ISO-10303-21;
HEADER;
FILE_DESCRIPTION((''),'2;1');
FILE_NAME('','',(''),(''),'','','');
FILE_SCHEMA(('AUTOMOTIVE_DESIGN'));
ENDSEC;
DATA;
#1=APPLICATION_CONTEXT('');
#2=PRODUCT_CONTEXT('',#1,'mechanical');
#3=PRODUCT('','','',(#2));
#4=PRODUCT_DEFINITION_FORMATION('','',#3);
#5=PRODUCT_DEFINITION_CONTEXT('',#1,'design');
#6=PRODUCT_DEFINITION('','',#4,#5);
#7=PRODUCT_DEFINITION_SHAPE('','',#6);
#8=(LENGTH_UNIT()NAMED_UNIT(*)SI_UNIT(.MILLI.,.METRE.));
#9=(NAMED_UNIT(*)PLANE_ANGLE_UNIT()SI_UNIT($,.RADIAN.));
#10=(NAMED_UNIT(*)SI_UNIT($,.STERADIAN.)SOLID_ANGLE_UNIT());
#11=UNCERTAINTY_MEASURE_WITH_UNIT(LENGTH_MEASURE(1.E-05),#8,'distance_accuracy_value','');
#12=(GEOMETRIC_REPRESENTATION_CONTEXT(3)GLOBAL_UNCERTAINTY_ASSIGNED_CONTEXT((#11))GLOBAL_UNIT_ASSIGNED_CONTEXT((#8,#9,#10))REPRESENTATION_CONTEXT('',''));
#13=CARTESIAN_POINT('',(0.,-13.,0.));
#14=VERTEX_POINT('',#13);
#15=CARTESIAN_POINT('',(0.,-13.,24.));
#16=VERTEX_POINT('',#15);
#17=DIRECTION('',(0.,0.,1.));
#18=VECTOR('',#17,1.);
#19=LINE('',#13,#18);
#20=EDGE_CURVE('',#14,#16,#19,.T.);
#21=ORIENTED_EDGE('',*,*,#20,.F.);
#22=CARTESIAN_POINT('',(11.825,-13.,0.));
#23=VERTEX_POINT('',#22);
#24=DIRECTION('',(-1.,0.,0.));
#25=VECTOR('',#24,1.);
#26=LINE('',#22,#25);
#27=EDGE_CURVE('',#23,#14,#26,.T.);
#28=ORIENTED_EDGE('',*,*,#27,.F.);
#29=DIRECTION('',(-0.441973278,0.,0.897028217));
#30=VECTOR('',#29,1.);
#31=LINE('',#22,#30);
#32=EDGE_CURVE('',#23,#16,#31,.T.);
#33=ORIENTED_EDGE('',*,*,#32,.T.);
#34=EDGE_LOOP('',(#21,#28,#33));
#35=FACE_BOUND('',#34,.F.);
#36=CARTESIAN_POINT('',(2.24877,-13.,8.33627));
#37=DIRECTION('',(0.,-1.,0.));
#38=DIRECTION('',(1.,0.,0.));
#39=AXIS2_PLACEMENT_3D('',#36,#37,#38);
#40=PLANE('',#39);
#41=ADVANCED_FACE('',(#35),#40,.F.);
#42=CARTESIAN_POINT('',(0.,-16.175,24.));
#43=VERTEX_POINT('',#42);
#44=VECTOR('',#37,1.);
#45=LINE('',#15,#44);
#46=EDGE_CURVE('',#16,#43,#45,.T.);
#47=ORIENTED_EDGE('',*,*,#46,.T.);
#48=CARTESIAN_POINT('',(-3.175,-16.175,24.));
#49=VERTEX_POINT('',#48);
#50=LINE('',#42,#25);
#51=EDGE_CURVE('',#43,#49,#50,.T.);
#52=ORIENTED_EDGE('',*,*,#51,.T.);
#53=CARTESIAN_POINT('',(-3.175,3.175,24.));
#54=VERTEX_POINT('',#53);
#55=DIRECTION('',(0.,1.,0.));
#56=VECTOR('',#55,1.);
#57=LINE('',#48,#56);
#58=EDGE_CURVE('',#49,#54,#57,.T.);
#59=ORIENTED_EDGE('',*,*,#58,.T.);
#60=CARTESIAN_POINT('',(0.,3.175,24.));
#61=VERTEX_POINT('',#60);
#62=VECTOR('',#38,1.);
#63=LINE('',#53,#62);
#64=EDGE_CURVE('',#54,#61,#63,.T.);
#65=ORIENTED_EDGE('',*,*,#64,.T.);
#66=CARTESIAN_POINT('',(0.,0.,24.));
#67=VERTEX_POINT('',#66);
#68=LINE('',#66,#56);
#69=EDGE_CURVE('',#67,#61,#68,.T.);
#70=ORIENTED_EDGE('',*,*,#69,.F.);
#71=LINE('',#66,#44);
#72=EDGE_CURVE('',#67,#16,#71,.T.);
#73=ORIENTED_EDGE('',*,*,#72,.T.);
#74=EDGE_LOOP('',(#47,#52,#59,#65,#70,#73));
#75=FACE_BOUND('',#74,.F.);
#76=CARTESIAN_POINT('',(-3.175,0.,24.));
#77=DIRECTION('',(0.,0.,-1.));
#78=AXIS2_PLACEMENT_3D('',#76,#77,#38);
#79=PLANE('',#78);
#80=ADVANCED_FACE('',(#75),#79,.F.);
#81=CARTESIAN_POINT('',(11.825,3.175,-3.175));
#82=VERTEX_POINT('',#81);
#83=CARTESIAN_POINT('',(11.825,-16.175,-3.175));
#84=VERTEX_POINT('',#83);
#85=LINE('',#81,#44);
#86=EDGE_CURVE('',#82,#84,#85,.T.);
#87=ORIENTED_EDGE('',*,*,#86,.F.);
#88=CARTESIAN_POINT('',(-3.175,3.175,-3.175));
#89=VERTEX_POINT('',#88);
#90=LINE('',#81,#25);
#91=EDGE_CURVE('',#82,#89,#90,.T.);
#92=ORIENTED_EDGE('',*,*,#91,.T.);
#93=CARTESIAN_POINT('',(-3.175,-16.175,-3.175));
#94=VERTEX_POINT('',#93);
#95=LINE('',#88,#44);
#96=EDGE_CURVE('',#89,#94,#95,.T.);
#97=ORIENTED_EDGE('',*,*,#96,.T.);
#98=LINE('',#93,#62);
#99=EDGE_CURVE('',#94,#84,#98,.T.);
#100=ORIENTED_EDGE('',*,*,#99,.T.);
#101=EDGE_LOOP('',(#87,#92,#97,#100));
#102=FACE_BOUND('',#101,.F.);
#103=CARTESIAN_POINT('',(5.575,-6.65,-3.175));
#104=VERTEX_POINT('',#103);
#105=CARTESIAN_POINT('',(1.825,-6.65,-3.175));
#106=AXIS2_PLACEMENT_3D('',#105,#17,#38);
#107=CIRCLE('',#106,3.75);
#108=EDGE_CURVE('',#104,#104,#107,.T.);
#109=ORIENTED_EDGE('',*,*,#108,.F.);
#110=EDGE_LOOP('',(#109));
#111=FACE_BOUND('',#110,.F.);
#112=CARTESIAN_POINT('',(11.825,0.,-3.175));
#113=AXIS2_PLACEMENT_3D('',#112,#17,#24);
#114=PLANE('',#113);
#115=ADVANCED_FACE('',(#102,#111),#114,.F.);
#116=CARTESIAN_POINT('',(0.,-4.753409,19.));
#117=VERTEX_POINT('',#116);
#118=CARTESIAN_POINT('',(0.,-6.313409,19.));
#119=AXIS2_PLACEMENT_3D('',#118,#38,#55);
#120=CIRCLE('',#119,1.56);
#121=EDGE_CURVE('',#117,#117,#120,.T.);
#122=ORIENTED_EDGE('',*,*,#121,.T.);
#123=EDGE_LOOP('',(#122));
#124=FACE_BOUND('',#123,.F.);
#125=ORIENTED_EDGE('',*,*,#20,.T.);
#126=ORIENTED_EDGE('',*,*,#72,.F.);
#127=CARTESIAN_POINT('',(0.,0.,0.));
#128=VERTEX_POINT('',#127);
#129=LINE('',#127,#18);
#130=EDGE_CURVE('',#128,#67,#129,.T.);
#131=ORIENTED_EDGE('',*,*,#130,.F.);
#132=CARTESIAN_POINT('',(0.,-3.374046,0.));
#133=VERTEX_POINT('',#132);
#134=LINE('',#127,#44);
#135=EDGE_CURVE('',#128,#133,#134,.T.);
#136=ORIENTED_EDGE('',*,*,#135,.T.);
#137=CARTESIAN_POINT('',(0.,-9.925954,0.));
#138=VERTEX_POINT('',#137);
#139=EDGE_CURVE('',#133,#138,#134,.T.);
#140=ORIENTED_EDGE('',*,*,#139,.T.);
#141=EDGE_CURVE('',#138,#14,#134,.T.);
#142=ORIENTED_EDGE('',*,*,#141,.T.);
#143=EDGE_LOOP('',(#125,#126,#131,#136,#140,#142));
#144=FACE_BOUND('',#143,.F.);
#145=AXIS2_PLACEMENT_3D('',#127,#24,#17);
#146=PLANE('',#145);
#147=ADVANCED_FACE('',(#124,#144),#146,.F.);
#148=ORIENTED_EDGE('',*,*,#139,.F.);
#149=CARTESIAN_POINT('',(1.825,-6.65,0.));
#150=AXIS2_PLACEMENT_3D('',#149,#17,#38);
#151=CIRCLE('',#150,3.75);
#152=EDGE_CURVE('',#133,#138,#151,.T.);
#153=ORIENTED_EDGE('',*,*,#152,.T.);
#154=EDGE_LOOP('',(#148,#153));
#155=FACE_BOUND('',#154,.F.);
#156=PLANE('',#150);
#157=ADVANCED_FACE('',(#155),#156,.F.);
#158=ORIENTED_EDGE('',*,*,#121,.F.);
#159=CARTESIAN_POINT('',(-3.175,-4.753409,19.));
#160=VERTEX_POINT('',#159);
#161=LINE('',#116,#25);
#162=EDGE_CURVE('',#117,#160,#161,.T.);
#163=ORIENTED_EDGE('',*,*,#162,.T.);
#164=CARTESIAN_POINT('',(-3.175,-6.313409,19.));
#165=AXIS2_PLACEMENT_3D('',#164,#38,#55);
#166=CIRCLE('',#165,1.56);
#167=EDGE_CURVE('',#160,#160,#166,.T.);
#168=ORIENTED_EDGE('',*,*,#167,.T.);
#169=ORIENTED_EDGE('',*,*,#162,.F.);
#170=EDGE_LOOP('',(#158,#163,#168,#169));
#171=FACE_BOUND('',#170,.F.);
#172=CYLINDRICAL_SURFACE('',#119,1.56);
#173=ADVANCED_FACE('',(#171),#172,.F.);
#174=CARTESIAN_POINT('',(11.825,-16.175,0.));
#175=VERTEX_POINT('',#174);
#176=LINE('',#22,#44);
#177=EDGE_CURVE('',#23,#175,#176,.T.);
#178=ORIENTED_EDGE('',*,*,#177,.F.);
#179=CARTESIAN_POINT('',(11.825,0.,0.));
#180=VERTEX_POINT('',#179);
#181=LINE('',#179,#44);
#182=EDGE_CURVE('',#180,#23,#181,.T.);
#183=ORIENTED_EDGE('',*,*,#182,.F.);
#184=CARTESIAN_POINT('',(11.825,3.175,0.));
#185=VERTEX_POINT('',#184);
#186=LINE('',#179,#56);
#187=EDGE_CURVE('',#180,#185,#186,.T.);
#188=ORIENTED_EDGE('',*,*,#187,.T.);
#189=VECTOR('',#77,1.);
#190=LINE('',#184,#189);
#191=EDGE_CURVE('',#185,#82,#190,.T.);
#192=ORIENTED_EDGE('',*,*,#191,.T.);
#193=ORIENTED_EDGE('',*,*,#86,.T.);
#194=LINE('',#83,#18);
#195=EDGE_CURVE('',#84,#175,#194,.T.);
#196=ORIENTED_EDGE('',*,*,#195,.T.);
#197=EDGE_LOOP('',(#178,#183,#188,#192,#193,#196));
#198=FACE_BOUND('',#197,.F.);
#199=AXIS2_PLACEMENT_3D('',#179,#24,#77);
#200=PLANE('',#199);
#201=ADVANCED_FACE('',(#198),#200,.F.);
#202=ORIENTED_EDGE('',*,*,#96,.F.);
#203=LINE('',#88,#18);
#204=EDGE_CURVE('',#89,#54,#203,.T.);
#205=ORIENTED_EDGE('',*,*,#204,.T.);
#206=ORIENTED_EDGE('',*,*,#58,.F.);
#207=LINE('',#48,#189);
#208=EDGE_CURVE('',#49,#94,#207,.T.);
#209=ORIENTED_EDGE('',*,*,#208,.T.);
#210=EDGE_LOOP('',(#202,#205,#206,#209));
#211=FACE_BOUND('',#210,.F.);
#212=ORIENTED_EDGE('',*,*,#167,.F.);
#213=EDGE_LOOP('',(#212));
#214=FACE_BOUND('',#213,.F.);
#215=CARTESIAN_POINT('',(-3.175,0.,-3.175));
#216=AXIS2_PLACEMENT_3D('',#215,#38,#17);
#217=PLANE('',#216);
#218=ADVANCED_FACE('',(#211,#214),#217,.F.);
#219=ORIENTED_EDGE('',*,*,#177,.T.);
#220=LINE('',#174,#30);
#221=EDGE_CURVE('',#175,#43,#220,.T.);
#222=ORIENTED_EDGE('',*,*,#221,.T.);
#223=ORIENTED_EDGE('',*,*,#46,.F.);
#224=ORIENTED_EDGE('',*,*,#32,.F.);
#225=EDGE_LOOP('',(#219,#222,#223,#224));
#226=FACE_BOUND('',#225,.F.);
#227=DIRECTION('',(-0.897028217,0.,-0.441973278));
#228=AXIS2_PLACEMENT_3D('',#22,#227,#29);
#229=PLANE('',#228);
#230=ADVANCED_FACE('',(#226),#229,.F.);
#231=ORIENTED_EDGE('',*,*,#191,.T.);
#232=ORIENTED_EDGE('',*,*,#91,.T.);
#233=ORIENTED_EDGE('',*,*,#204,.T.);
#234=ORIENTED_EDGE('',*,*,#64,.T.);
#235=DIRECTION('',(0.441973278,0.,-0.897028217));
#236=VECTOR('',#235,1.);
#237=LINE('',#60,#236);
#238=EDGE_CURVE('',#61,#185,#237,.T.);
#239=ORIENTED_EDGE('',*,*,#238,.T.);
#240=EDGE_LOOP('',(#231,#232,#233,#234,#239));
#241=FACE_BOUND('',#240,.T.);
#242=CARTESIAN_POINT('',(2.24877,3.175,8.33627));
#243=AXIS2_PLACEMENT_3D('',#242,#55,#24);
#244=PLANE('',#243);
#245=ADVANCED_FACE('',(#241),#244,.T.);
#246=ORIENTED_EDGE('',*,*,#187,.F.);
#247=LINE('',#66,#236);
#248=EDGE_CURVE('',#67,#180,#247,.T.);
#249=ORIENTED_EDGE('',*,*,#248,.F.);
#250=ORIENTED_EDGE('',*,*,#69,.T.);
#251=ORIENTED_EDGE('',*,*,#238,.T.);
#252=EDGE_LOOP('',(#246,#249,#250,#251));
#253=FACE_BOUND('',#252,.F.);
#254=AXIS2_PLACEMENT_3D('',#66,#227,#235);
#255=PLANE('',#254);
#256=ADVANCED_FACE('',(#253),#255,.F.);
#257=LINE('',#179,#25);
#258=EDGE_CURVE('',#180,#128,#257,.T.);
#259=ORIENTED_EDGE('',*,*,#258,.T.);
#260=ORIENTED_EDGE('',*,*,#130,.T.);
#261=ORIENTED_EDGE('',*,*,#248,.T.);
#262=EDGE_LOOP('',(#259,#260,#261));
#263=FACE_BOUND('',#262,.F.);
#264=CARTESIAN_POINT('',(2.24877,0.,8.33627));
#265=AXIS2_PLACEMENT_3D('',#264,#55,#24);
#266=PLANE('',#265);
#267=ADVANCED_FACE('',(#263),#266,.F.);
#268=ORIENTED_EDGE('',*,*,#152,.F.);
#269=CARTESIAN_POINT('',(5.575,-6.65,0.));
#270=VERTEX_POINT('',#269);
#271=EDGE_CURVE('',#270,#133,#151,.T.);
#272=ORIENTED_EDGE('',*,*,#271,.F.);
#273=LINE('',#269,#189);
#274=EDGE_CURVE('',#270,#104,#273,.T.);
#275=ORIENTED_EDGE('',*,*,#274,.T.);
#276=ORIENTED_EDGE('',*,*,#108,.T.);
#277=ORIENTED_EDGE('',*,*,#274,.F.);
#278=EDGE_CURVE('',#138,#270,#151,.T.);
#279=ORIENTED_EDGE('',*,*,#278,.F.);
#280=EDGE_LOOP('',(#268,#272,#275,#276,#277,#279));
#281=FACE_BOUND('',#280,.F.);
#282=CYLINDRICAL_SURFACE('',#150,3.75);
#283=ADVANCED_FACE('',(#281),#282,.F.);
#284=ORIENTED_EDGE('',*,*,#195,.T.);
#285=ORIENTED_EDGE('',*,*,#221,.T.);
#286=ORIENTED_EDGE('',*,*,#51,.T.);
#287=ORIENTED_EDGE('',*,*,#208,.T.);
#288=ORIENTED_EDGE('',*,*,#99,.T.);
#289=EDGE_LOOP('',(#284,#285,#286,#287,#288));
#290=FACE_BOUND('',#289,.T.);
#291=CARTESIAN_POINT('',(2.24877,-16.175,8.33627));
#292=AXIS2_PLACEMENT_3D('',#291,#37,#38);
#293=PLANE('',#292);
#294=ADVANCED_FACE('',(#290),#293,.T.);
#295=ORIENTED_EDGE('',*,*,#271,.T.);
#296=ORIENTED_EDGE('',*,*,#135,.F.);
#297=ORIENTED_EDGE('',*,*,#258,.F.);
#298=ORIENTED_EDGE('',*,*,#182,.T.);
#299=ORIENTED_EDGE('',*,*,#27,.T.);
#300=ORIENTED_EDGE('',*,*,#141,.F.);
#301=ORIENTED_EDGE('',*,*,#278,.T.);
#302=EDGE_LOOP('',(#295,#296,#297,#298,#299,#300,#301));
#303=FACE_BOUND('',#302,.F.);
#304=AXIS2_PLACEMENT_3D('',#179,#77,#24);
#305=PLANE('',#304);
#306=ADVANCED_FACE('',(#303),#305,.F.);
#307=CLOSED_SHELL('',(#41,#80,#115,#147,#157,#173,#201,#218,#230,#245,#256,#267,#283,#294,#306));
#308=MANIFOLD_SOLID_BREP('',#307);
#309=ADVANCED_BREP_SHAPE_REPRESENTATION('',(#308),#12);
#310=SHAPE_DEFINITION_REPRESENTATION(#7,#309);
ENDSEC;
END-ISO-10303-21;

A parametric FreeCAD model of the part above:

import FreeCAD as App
import Part
import Sketcher

V = App.Vector

doc = App.newDocument("Part")
body = doc.addObject("PartDesign::Body", "Body")

# Sketch on XZ plane
sketch1 = doc.addObject("Sketcher::SketchObject", "Sketch")
body.addObject(sketch1)
sketch1.AttachmentSupport = (doc.XZ_Plane, [""])
sketch1.MapMode = "FlatFace"
sketch1.addGeometry(Part.LineSegment(V(0, 24, 0), V(-3.2, 24, 0)), False)
sketch1.addGeometry(Part.LineSegment(V(-3.2, 24, 0), V(-3.2, -3.2, 0)), False)
sketch1.addGeometry(Part.LineSegment(V(-3.2, -3.2, 0), V(11.8, -3.2, 0)), False)
sketch1.addGeometry(Part.LineSegment(V(11.8, -3.2, 0), V(11.8, 0, 0)), False)
sketch1.addGeometry(Part.LineSegment(V(11.8, 0, 0), V(0, 0, 0)), False)
sketch1.addGeometry(Part.LineSegment(V(0, 0, 0), V(0, 24, 0)), False)
sketch1.addConstraint(Sketcher.Constraint("Coincident", 0, 2, 1, 1))
sketch1.addConstraint(Sketcher.Constraint("Coincident", 1, 2, 2, 1))
sketch1.addConstraint(Sketcher.Constraint("Coincident", 2, 2, 3, 1))
sketch1.addConstraint(Sketcher.Constraint("Coincident", 3, 2, 4, 1))
sketch1.addConstraint(Sketcher.Constraint("Coincident", 4, 2, 5, 1))
sketch1.addConstraint(Sketcher.Constraint("Coincident", 5, 2, 0, 1))
sketch1.addConstraint(Sketcher.Constraint("Horizontal", 0))
sketch1.addConstraint(Sketcher.Constraint("Vertical", 1))
sketch1.addConstraint(Sketcher.Constraint("Horizontal", 2))
sketch1.addConstraint(Sketcher.Constraint("Vertical", 3))
sketch1.addConstraint(Sketcher.Constraint("Horizontal", 4))
sketch1.addConstraint(Sketcher.Constraint("Vertical", 5))
sketch1.addConstraint(Sketcher.Constraint("Coincident", 4, 2, -1, 1))
sketch1.addConstraint(Sketcher.Constraint("Equal", 0, 3))
sketch1.addConstraint(Sketcher.Constraint("DistanceX", 2, 1, 2, 2, 15.0))
sketch1.addConstraint(Sketcher.Constraint("DistanceY", 5, 1, 5, 2, 24.0))
sketch1.addConstraint(Sketcher.Constraint("DistanceX", 0, 2, 0, 1, 3.175))
pad1 = doc.addObject("PartDesign::Pad", "Pad")
body.addObject(pad1)
pad1.Profile = sketch1
pad1.Length = 13

# Sketch on XZ plane
sketch2 = doc.addObject("Sketcher::SketchObject", "Sketch001")
body.addObject(sketch2)
sketch2.AttachmentSupport = (doc.XZ_Plane, [""])
sketch2.MapMode = "FlatFace"
sketch2.AttachmentOffset = App.Placement(V(0, 0, 13), App.Rotation())
sketch2.addGeometry(Part.LineSegment(V(0, 24, 0), V(-3.2, 24, 0)), False)
sketch2.addGeometry(Part.LineSegment(V(-3.2, 24, 0), V(-3.2, -3.2, 0)), False)
sketch2.addGeometry(Part.LineSegment(V(-3.2, -3.2, 0), V(11.8, -3.2, 0)), False)
sketch2.addGeometry(Part.LineSegment(V(11.8, -3.2, 0), V(11.8, 0, 0)), False)
sketch2.addGeometry(Part.LineSegment(V(11.8, 0, 0), V(0, 24, 0)), False)
sketch2.addConstraint(Sketcher.Constraint("Coincident", 0, 2, 1, 1))
sketch2.addConstraint(Sketcher.Constraint("Coincident", 1, 2, 2, 1))
sketch2.addConstraint(Sketcher.Constraint("Coincident", 2, 2, 3, 1))
sketch2.addConstraint(Sketcher.Constraint("Coincident", 3, 2, 4, 1))
sketch2.addConstraint(Sketcher.Constraint("Coincident", 4, 2, 0, 1))
sketch2.addConstraint(Sketcher.Constraint("Horizontal", 0))
sketch2.addConstraint(Sketcher.Constraint("Vertical", 1))
sketch2.addConstraint(Sketcher.Constraint("Horizontal", 2))
sketch2.addConstraint(Sketcher.Constraint("Vertical", 3))
sketch2.addConstraint(Sketcher.Constraint("PointOnObject", 3, 2, -1))
sketch2.addConstraint(Sketcher.Constraint("PointOnObject", 4, 2, -2))
sketch2.addConstraint(Sketcher.Constraint("Equal", 0, 3))
sketch2.addConstraint(Sketcher.Constraint("DistanceX", 2, 1, 2, 2, 15.0))
sketch2.addConstraint(Sketcher.Constraint("DistanceY", -1, 1, 0, 2, 24.0))
sketch2.addConstraint(Sketcher.Constraint("DistanceX", 0, 2, 0, 1, 3.175))
pad2 = doc.addObject("PartDesign::Pad", "Pad001")
body.addObject(pad2)
pad2.Profile = sketch2
pad2.Length = 3.175

# Sketch on XZ plane
sketch3 = doc.addObject("Sketcher::SketchObject", "Sketch002")
body.addObject(sketch3)
sketch3.AttachmentSupport = (doc.XZ_Plane, [""])
sketch3.MapMode = "FlatFace"
sketch3.addGeometry(Part.LineSegment(V(-3.2, -3.2, 0), V(-3.2, 24, 0)), False)
sketch3.addGeometry(Part.LineSegment(V(-3.2, 24, 0), V(0, 24, 0)), False)
sketch3.addGeometry(Part.LineSegment(V(0, 24, 0), V(11.8, 0, 0)), False)
sketch3.addGeometry(Part.LineSegment(V(11.8, 0, 0), V(11.8, -3.2, 0)), False)
sketch3.addGeometry(Part.LineSegment(V(11.8, -3.2, 0), V(-3.2, -3.2, 0)), False)
sketch3.addConstraint(Sketcher.Constraint("Coincident", 0, 2, 1, 1))
sketch3.addConstraint(Sketcher.Constraint("Coincident", 1, 2, 2, 1))
sketch3.addConstraint(Sketcher.Constraint("Coincident", 2, 2, 3, 1))
sketch3.addConstraint(Sketcher.Constraint("Coincident", 3, 2, 4, 1))
sketch3.addConstraint(Sketcher.Constraint("Coincident", 4, 2, 0, 1))
sketch3.addConstraint(Sketcher.Constraint("Vertical", 0))
sketch3.addConstraint(Sketcher.Constraint("Horizontal", 1))
sketch3.addConstraint(Sketcher.Constraint("Vertical", 3))
sketch3.addConstraint(Sketcher.Constraint("Horizontal", 4))
sketch3.addConstraint(Sketcher.Constraint("PointOnObject", 1, 2, -2))
sketch3.addConstraint(Sketcher.Constraint("PointOnObject", 2, 2, -1))
sketch3.addConstraint(Sketcher.Constraint("Equal", 1, 3))
sketch3.addConstraint(Sketcher.Constraint("DistanceX", 4, 2, 4, 1, 15.0))
sketch3.addConstraint(Sketcher.Constraint("DistanceY", -1, 1, 0, 2, 24.0))
sketch3.addConstraint(Sketcher.Constraint("DistanceX", 1, 1, 1, 2, 3.175))
pad3 = doc.addObject("PartDesign::Pad", "Pad002")
body.addObject(pad3)
pad3.Profile = sketch3
pad3.Length = 3.175
pad3.Reversed = True

# Sketch on XY plane
sketch4 = doc.addObject("Sketcher::SketchObject", "Sketch003")
body.addObject(sketch4)
sketch4.AttachmentSupport = (doc.XY_Plane, [""])
sketch4.MapMode = "FlatFace"
sketch4.addGeometry(Part.Circle(V(1.8, -6.7, 0), V(0, 0, 1), 3.8), False)
sketch4.addConstraint(Sketcher.Constraint("Diameter", 0, 7.5))
sketch4.addConstraint(Sketcher.Constraint("DistanceY", 0, 3, -1, 1, 6.65))
sketch4.addConstraint(Sketcher.Constraint("DistanceX", -1, 1, 0, 3, 1.825))
pocket1 = doc.addObject("PartDesign::Pocket", "Pocket")
body.addObject(pocket1)
pocket1.Profile = sketch4
pocket1.Type = "ThroughAll"

# Sketch on YZ plane
sketch5 = doc.addObject("Sketcher::SketchObject", "Sketch004")
body.addObject(sketch5)
sketch5.AttachmentSupport = (doc.YZ_Plane, [""])
sketch5.MapMode = "FlatFace"
sketch5.addGeometry(Part.Circle(V(-6.3, 19, 0), V(0, 0, 1), 1.6), False)
sketch5.addConstraint(Sketcher.Constraint("Diameter", 0, 3.12))
sketch5.addConstraint(Sketcher.Constraint("DistanceY", -1, 1, 0, 3, 19.0))
sketch5.addConstraint(Sketcher.Constraint("DistanceX", 0, 3, -1, 1, 6.313409))
pocket2 = doc.addObject("PartDesign::Pocket", "Pocket001")
body.addObject(pocket2)
pocket2.Profile = sketch5
pocket2.Type = "ThroughAll"

doc.recompute()
